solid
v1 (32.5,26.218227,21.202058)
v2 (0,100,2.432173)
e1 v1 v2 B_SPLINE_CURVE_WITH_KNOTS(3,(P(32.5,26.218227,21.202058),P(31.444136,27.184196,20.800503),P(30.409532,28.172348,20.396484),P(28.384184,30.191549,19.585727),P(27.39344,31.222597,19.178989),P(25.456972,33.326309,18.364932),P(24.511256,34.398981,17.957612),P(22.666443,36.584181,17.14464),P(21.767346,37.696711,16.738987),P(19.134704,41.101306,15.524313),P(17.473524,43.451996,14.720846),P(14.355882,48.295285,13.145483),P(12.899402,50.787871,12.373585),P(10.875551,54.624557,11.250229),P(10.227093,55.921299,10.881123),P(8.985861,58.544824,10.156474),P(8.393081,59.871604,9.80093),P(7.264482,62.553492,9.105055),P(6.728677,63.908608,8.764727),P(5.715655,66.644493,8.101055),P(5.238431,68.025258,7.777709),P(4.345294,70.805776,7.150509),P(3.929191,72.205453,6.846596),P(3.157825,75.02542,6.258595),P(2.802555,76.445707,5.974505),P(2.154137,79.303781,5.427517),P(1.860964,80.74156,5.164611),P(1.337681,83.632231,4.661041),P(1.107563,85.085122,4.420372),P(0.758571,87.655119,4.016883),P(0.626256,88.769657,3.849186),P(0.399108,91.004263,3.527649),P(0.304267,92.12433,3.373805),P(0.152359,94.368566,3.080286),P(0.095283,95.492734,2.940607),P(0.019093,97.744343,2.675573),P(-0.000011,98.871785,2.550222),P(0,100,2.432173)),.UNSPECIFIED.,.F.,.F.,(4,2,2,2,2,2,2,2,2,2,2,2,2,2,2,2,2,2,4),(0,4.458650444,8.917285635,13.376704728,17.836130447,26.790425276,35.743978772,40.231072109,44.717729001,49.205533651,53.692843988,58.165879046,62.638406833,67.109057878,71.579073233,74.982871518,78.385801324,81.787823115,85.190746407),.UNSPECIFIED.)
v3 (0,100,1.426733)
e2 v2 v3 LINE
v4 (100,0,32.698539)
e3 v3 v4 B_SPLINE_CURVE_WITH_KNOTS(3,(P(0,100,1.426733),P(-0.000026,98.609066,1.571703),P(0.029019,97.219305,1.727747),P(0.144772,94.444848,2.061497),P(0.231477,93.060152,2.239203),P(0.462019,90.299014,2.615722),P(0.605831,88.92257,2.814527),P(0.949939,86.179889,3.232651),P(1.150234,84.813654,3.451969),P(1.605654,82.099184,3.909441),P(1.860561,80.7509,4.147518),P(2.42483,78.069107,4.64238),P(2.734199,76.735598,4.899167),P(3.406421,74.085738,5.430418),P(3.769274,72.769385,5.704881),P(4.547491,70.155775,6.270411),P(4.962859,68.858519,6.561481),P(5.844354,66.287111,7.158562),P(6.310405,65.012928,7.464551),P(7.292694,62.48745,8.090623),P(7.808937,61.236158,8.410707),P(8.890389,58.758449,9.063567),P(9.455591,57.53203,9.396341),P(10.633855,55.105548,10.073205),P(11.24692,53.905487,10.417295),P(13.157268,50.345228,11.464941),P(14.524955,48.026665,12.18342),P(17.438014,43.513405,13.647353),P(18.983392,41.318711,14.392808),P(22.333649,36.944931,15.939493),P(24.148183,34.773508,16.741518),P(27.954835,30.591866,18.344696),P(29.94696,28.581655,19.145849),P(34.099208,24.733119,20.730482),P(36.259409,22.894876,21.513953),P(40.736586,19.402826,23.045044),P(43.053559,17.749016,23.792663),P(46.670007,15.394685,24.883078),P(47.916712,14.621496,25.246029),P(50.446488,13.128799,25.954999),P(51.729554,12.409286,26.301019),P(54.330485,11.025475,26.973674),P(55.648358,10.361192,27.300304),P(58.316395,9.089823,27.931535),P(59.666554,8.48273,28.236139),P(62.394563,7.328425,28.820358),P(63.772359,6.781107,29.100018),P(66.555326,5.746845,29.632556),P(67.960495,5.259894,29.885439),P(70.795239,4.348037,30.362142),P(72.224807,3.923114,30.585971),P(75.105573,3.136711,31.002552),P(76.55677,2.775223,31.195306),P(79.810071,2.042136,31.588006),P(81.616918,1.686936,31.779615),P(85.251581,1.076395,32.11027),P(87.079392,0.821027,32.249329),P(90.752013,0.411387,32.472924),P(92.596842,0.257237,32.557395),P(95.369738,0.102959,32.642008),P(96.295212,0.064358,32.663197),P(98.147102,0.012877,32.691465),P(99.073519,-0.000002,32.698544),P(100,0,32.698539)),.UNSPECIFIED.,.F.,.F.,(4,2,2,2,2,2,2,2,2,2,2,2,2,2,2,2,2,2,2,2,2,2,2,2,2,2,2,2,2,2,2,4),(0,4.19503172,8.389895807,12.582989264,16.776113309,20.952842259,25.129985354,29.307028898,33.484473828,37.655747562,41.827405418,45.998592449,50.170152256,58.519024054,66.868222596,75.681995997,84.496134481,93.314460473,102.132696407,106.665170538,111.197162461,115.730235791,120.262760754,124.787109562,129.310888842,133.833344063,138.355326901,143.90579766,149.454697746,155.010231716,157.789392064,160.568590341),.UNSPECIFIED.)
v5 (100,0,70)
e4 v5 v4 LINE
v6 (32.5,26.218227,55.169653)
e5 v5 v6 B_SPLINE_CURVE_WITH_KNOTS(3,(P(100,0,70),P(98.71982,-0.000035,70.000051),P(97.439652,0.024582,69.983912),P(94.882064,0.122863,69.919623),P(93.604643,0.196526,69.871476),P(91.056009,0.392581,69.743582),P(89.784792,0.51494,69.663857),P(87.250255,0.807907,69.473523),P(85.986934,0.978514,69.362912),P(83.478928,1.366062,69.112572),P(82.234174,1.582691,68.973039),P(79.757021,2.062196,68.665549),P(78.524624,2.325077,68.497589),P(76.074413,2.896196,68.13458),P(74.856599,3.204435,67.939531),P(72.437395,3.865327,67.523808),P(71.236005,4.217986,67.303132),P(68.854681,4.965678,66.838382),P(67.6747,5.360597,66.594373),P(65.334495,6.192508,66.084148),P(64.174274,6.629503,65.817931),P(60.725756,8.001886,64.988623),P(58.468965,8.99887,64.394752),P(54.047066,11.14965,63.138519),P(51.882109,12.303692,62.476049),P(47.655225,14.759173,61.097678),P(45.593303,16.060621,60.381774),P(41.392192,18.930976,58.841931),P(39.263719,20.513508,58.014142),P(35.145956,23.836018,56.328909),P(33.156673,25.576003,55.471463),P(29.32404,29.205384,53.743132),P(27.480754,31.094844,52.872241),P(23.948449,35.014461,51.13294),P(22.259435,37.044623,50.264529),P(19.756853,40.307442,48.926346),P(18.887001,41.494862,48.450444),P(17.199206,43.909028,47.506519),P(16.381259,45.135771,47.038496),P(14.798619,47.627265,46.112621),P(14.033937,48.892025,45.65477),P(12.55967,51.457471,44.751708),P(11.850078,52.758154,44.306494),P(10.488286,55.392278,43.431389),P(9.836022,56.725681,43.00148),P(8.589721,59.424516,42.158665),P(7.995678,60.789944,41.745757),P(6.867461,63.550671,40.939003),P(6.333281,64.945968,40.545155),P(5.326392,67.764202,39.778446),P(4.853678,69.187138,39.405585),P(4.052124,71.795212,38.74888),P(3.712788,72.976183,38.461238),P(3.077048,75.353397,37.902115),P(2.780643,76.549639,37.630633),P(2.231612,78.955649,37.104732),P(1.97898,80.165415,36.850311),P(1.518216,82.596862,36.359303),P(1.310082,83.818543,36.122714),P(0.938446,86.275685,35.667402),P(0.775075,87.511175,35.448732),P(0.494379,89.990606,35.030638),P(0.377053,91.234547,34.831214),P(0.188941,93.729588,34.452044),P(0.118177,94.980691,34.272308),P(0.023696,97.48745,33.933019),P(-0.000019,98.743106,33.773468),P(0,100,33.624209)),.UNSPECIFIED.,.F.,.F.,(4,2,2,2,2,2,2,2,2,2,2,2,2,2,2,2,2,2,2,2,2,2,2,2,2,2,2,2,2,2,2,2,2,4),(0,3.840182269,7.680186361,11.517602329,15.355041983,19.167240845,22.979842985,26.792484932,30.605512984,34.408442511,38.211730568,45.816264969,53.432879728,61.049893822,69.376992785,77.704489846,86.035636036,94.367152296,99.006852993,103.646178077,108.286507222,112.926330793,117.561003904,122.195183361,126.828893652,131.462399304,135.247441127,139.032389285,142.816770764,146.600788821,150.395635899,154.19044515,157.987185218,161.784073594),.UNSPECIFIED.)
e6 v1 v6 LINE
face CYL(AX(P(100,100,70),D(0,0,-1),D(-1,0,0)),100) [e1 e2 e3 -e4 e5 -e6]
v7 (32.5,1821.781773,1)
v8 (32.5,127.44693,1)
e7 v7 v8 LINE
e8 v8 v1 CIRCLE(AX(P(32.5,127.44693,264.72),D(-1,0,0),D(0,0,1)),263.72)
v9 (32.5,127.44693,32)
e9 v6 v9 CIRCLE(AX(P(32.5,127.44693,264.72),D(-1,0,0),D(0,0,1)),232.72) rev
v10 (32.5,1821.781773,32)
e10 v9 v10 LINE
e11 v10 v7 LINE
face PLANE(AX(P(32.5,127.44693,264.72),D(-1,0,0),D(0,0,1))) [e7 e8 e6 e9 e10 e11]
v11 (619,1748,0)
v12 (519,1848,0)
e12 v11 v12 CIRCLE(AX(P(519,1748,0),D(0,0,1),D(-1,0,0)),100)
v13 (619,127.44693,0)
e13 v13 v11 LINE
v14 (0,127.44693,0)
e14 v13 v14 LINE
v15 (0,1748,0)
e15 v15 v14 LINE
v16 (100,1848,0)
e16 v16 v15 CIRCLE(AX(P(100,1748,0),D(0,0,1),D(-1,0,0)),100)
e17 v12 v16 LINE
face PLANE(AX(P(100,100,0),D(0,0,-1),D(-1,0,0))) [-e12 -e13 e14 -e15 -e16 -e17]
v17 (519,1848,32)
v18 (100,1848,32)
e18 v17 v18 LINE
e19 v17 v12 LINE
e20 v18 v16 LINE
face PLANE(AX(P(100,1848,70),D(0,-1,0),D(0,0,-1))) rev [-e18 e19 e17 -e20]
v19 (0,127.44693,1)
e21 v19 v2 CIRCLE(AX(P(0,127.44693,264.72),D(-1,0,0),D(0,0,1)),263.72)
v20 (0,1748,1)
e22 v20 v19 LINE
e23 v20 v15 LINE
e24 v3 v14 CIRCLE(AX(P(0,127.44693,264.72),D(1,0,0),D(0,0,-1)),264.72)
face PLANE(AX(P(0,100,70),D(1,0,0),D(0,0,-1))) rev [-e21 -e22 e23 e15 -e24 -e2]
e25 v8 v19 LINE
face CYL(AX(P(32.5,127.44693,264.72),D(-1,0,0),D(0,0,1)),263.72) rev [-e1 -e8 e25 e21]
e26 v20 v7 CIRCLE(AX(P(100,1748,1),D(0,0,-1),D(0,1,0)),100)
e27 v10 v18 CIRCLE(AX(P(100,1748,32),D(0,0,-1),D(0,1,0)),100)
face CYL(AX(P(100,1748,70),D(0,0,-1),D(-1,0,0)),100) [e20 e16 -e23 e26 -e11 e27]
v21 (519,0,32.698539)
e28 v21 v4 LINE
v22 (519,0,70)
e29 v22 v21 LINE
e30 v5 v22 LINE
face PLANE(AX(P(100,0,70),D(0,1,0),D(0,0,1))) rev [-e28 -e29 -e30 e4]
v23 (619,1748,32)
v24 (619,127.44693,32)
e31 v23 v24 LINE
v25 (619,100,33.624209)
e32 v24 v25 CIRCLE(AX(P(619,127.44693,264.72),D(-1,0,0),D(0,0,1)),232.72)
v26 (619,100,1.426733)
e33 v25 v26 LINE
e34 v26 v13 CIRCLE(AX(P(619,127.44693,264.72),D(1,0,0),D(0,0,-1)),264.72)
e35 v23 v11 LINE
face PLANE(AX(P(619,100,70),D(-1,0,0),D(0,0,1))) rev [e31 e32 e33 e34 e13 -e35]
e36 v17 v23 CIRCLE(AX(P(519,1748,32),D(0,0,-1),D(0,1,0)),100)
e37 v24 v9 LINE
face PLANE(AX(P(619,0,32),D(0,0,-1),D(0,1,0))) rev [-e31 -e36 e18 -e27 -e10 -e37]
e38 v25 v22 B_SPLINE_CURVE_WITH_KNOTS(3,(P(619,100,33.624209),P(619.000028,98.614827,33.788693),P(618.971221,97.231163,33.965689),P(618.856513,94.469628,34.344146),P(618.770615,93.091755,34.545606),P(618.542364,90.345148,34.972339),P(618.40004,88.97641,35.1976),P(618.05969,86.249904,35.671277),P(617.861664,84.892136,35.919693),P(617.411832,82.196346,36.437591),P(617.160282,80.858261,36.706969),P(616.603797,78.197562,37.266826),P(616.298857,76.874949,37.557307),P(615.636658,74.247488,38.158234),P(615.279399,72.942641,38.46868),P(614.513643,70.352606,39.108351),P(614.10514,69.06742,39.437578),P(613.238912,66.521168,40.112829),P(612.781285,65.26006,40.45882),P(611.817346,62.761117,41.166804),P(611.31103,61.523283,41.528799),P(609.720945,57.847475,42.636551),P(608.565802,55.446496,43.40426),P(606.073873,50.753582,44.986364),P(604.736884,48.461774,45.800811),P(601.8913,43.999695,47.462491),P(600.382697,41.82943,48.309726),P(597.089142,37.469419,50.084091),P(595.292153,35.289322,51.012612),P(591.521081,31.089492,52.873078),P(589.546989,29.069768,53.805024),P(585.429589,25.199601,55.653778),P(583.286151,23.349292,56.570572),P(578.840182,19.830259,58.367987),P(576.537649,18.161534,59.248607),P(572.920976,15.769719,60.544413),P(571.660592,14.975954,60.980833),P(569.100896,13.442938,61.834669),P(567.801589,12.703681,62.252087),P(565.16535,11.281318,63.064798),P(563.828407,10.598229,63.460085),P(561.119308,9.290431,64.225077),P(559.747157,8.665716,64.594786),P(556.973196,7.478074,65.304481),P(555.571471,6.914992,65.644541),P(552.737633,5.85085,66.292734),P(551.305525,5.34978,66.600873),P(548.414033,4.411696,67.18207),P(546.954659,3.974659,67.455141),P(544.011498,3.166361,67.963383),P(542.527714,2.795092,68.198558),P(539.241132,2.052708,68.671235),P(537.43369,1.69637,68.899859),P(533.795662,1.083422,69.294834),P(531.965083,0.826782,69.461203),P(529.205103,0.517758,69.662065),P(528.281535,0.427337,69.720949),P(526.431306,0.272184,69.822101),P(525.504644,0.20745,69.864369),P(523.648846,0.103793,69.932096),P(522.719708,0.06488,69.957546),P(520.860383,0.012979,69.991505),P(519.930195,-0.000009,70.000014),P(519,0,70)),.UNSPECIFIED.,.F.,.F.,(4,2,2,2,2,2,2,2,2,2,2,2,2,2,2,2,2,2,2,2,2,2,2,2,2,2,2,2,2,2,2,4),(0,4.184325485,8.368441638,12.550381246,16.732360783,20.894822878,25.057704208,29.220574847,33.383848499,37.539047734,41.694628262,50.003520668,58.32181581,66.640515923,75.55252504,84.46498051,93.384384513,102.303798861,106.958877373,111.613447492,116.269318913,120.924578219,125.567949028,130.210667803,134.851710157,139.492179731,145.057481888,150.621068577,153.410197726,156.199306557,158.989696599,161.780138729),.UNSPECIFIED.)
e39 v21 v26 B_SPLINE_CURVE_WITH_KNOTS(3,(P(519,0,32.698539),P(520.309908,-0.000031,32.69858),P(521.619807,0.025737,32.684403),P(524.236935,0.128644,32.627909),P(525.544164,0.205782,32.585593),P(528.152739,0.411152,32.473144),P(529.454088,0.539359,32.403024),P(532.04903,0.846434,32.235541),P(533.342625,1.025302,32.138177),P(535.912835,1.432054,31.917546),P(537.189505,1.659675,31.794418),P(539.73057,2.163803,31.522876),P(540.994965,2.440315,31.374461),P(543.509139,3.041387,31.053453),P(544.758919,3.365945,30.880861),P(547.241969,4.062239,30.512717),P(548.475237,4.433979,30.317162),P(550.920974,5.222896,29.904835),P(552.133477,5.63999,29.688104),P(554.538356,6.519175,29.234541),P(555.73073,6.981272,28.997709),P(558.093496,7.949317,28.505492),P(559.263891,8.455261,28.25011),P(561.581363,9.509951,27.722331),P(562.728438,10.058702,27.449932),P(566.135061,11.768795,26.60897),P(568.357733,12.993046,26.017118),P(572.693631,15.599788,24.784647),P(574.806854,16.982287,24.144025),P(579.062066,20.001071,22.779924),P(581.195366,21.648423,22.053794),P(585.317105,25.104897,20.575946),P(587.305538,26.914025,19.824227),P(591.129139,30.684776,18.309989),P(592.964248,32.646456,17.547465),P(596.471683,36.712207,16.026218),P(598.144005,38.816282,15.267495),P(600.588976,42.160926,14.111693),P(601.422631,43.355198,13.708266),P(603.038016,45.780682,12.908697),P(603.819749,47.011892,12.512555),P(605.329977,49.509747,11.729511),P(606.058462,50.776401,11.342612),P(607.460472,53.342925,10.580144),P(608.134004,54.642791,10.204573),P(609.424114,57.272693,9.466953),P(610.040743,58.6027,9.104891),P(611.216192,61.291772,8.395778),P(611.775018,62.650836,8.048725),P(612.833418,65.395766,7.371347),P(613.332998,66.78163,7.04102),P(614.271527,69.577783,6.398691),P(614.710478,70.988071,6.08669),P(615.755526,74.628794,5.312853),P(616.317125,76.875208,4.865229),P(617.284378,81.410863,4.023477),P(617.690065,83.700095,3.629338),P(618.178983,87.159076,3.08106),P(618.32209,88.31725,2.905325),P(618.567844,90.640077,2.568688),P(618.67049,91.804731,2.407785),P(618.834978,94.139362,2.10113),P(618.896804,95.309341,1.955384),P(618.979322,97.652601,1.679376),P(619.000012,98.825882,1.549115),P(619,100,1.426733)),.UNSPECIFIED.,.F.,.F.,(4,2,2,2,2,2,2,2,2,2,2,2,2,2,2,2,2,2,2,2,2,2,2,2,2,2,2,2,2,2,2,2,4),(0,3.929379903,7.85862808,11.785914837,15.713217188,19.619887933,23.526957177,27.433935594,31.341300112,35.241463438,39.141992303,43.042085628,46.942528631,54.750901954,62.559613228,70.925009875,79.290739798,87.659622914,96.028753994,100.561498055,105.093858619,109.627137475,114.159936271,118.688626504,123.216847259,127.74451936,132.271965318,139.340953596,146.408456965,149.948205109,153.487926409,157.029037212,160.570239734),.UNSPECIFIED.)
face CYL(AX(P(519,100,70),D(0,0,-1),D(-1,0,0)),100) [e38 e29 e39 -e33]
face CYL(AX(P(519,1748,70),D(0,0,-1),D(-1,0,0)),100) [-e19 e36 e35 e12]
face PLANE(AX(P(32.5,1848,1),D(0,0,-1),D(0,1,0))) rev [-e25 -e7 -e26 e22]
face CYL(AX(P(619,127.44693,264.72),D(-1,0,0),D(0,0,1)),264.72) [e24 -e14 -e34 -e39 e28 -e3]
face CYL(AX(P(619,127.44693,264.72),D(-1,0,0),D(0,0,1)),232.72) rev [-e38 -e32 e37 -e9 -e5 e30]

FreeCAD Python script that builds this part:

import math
import FreeCAD as App
import Part
import Sketcher
from FreeCAD import Vector
Q = App.Units.Quantity

doc = App.newDocument("Part")
body = doc.addObject("PartDesign::Body", "Body")

sketch1 = body.newObject("Sketcher::SketchObject", "Sketch")
sketch1.AttachmentSupport = (doc.getObject("XY_Plane"), [""])
sketch1.MapMode = "FlatFace"
sketch1.addGeometry([
    Part.LineSegment(Vector(100, 0, 0), Vector(519, 0, 0)),
    Part.ArcOfCircle(Part.Circle(Vector(519, 100, 0), Vector(0, 0, 1), 100), math.radians(-90), math.radians(0)),
    Part.LineSegment(Vector(619, 100, 0), Vector(619, 1748, 0)),
    Part.ArcOfCircle(Part.Circle(Vector(519, 1748, 0), Vector(0, 0, 1), 100), math.radians(0), math.radians(90)),
    Part.LineSegment(Vector(519, 1848, 0), Vector(100, 1848, 0)),
    Part.ArcOfCircle(Part.Circle(Vector(100, 1748, 0), Vector(0, 0, 1), 100), math.radians(90), math.radians(180)),
    Part.LineSegment(Vector(0, 1748, 0), Vector(0, 100, 0)),
    Part.ArcOfCircle(Part.Circle(Vector(100, 100, 0), Vector(0, 0, 1), 100), math.radians(180), math.radians(270)),
], False)
sketch1.addConstraint([
    Sketcher.Constraint("Tangent", 0, 2, 1, 1),
    Sketcher.Constraint("Tangent", 1, 2, 2, 1),
    Sketcher.Constraint("Tangent", 2, 2, 3, 1),
    Sketcher.Constraint("Tangent", 3, 2, 4, 1),
    Sketcher.Constraint("Tangent", 4, 2, 5, 1),
    Sketcher.Constraint("Tangent", 5, 2, 6, 1),
    Sketcher.Constraint("Tangent", 6, 2, 7, 1),
    Sketcher.Constraint("Tangent", 7, 2, 0, 1),
    Sketcher.Constraint("Horizontal", 0),
    Sketcher.Constraint("Vertical", 2),
    Sketcher.Constraint("Horizontal", 4),
    Sketcher.Constraint("Vertical", 6),
    Sketcher.Constraint("Equal", 1, 3),
    Sketcher.Constraint("Equal", 3, 5),
    Sketcher.Constraint("Equal", 5, 7),
    Sketcher.Constraint("PointOnObject", 0, 2, -1),
    Sketcher.Constraint("PointOnObject", 5, 2, -2),
    Sketcher.Constraint("Radius", 1, Q("100 mm")),
    Sketcher.Constraint("DistanceX", 0, 1, 0, 2, Q("419 mm")),
    Sketcher.Constraint("DistanceY", 2, 1, 2, 2, Q("1648 mm")),
])
pad1 = body.newObject("PartDesign::Pad", "Pad")
pad1.Profile = sketch1
pad1.Length = 70

sketch2 = body.newObject("Sketcher::SketchObject", "Sketch001")
sketch2.AttachmentSupport = (doc.getObject("YZ_Plane"), [""])
sketch2.MapMode = "FlatFace"
sketch2.addGeometry([
    Part.LineSegment(Vector(1848, 70, 0), Vector(1848, 32, 0)),
    Part.LineSegment(Vector(1848, 32, 0), Vector(127, 32, 0)),
    Part.ArcOfCircle(Part.Circle(Vector(127, 265, 0), Vector(0, 0, 1), 233), math.radians(-123), math.radians(-90)),
    Part.LineSegment(Vector(0, 70, 0), Vector(1848, 70, 0)),
    Part.LineSegment(Vector(0, 0, 0), Vector(0, 33, 0)),
    Part.ArcOfCircle(Part.Circle(Vector(127, 265, 0), Vector(0, 0, 1), 265), math.radians(-119), math.radians(-90)),
    Part.LineSegment(Vector(127, 0, 0), Vector(0, 0, 0)),
], False)
sketch2.addConstraint([
    Sketcher.Constraint("Coincident", 0, 2, 1, 1),
    Sketcher.Constraint("Tangent", 1, 2, 2, 2),
    Sketcher.Constraint("Coincident", 2, 1, 3, 1),
    Sketcher.Constraint("Coincident", 3, 2, 0, 1),
    Sketcher.Constraint("Coincident", 4, 2, 5, 1),
    Sketcher.Constraint("Tangent", 5, 2, 6, 1),
    Sketcher.Constraint("Coincident", 6, 2, 4, 1),
    Sketcher.Constraint("Vertical", 0),
    Sketcher.Constraint("Horizontal", 1),
    Sketcher.Constraint("Horizontal", 3),
    Sketcher.Constraint("Vertical", 4),
    Sketcher.Constraint("Horizontal", 6),
    Sketcher.Constraint("Coincident", 6, 2, -1, 1),
    Sketcher.Constraint("Coincident", 5, 3, 2, 3),
    Sketcher.Constraint("PointOnObject", 2, 1, -2),
    Sketcher.Constraint("DistanceX", 3, 1, 3, 2, Q("1848 mm")),
    Sketcher.Constraint("DistanceY", 0, 2, 0, 1, Q("38 mm")),
    Sketcher.Constraint("Radius", 2, Q("232.72 mm")),
    Sketcher.Constraint("Radius", 5, Q("264.72 mm")),
])
pocket1 = body.newObject("PartDesign::Pocket", "Pocket")
pocket1.Profile = sketch2
pocket1.Type = "ThroughAll"
pocket1.Reversed = True

sketch3 = body.newObject("Sketcher::SketchObject", "Sketch002")
sketch3.AttachmentSupport = (doc.getObject("YZ_Plane"), [""])
sketch3.MapMode = "FlatFace"
sketch3.addGeometry([
    Part.LineSegment(Vector(1848, 32, 0), Vector(1848, 1, 0)),
    Part.LineSegment(Vector(1848, 1, 0), Vector(127, 1, 0)),
    Part.ArcOfCircle(Part.Circle(Vector(127, 265, 0), Vector(0, 0, 1), 264), math.radians(-119), math.radians(-90)),
    Part.LineSegment(Vector(0, 34, 0), Vector(0, 70, 0)),
    Part.ArcOfCircle(Part.Circle(Vector(127, 265, 0), Vector(0, 0, 1), 233), math.radians(-123), math.radians(-90)),
    Part.LineSegment(Vector(127, 32, 0), Vector(1848, 32, 0)),
], False)
sketch3.addConstraint([
    Sketcher.Constraint("Coincident", 0, 2, 1, 1),
    Sketcher.Constraint("Tangent", 1, 2, 2, 2),
    Sketcher.Constraint("Coincident", 2, 1, 3, 1),
    Sketcher.Constraint("Coincident", 3, 2, 4, 1),
    Sketcher.Constraint("Tangent", 4, 2, 5, 1),
    Sketcher.Constraint("Coincident", 5, 2, 0, 1),
    Sketcher.Constraint("Vertical", 0),
    Sketcher.Constraint("Horizontal", 1),
    Sketcher.Constraint("Vertical", 3),
    Sketcher.Constraint("Horizontal", 5),
    Sketcher.Constraint("Coincident", 4, 3, 2, 3),
    Sketcher.Constraint("PointOnObject", 2, 1, -2),
    Sketcher.Constraint("DistanceY", 0, 2, 0, 1, Q("31 mm")),
    Sketcher.Constraint("Radius", 2, Q("263.72 mm")),
    Sketcher.Constraint("DistanceX", -1, 1, 0, 2, Q("1848 mm")),
    Sketcher.Constraint("DistanceY", -1, 1, 0, 2, Q("1 mm")),
    Sketcher.Constraint("DistanceY", -1, 1, 3, 2, Q("70 mm")),
])
pocket2 = body.newObject("PartDesign::Pocket", "Pocket001")
pocket2.Profile = sketch3
pocket2.Length = 32.5
pocket2.Reversed = True

doc.recompute()
